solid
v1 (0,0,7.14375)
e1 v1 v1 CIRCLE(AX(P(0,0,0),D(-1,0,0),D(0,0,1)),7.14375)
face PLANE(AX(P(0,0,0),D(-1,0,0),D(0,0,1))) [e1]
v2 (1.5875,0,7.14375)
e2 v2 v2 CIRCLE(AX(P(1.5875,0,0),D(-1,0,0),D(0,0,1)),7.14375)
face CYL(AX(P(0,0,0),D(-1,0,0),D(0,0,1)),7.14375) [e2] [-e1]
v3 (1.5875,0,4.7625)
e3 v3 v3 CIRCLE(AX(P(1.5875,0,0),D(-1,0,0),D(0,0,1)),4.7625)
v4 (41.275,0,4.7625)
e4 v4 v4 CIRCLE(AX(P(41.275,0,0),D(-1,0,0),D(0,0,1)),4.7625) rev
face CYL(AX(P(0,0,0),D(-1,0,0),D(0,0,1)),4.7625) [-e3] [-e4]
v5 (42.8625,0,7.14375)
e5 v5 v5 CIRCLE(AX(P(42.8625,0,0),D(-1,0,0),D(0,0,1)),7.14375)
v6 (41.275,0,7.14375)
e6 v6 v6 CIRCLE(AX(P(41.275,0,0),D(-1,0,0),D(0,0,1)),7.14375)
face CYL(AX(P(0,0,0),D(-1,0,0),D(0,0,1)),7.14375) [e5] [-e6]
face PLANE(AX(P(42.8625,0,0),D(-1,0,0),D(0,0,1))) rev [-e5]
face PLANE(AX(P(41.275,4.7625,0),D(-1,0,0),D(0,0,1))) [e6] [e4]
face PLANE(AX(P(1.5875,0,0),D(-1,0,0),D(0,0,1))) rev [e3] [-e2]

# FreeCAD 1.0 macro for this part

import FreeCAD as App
import Part
import Sketcher
Q = App.Units.Quantity


def add_polygon(sketch, points):
    """Adds a closed chain of lines whose ends are joined by coincident constraints."""
    first, n = sketch.GeometryCount, len(points)
    for a, b in zip(points, points[1:] + points[:1]):
        sketch.addGeometry(Part.LineSegment(App.Vector(*a, 0), App.Vector(*b, 0)), False)
    for i in range(n):
        sketch.addConstraint(Sketcher.Constraint("Coincident", first + i, 2, first + (i + 1) % n, 1))

doc = App.newDocument("Part")
body = doc.addObject("PartDesign::Body", "Body")

# Sketch on XY plane
sketch1 = body.newObject("Sketcher::SketchObject", "Sketch")
sketch1.AttachmentSupport = (doc.getObject("XY_Plane"), [""])
sketch1.MapMode = "FlatFace"
add_polygon(sketch1, [(0, 0), (42.9, 0), (42.9, 7.1), (41.3, 7.1), (41.3, 4.8), (1.6, 4.8), (1.6, 7.1), (0, 7.1)])  # lines 0-7
sketch1.addConstraint([
    Sketcher.Constraint("Horizontal", 0),
    Sketcher.Constraint("Vertical", 1),
    Sketcher.Constraint("Horizontal", 2),
    Sketcher.Constraint("Vertical", 3),
    Sketcher.Constraint("Horizontal", 4),
    Sketcher.Constraint("Vertical", 5),
    Sketcher.Constraint("Horizontal", 6),
    Sketcher.Constraint("Vertical", 7),
    Sketcher.Constraint("Coincident", 7, 2, -1, 1),
    Sketcher.Constraint("Horizontal", 2, 2, 5, 2),
    Sketcher.Constraint("Equal", 2, 6),
    Sketcher.Constraint("DistanceX", 0, 1, 0, 2, Q("1.6875 in")),
    Sketcher.Constraint("DistanceX", 2, 2, 2, 1, Q("0.0625 in")),
    Sketcher.Constraint("DistanceY", 1, 1, 1, 2, Q("0.28125 in")),
    Sketcher.Constraint("DistanceY", 3, 2, 3, 1, Q("0.09375 in")),
])
revolution = body.newObject("PartDesign::Revolution", "Revolution")
revolution.Profile = sketch1
revolution.ReferenceAxis = (sketch1, ["H_Axis"])
revolution.Angle = 360

doc.recompute()
